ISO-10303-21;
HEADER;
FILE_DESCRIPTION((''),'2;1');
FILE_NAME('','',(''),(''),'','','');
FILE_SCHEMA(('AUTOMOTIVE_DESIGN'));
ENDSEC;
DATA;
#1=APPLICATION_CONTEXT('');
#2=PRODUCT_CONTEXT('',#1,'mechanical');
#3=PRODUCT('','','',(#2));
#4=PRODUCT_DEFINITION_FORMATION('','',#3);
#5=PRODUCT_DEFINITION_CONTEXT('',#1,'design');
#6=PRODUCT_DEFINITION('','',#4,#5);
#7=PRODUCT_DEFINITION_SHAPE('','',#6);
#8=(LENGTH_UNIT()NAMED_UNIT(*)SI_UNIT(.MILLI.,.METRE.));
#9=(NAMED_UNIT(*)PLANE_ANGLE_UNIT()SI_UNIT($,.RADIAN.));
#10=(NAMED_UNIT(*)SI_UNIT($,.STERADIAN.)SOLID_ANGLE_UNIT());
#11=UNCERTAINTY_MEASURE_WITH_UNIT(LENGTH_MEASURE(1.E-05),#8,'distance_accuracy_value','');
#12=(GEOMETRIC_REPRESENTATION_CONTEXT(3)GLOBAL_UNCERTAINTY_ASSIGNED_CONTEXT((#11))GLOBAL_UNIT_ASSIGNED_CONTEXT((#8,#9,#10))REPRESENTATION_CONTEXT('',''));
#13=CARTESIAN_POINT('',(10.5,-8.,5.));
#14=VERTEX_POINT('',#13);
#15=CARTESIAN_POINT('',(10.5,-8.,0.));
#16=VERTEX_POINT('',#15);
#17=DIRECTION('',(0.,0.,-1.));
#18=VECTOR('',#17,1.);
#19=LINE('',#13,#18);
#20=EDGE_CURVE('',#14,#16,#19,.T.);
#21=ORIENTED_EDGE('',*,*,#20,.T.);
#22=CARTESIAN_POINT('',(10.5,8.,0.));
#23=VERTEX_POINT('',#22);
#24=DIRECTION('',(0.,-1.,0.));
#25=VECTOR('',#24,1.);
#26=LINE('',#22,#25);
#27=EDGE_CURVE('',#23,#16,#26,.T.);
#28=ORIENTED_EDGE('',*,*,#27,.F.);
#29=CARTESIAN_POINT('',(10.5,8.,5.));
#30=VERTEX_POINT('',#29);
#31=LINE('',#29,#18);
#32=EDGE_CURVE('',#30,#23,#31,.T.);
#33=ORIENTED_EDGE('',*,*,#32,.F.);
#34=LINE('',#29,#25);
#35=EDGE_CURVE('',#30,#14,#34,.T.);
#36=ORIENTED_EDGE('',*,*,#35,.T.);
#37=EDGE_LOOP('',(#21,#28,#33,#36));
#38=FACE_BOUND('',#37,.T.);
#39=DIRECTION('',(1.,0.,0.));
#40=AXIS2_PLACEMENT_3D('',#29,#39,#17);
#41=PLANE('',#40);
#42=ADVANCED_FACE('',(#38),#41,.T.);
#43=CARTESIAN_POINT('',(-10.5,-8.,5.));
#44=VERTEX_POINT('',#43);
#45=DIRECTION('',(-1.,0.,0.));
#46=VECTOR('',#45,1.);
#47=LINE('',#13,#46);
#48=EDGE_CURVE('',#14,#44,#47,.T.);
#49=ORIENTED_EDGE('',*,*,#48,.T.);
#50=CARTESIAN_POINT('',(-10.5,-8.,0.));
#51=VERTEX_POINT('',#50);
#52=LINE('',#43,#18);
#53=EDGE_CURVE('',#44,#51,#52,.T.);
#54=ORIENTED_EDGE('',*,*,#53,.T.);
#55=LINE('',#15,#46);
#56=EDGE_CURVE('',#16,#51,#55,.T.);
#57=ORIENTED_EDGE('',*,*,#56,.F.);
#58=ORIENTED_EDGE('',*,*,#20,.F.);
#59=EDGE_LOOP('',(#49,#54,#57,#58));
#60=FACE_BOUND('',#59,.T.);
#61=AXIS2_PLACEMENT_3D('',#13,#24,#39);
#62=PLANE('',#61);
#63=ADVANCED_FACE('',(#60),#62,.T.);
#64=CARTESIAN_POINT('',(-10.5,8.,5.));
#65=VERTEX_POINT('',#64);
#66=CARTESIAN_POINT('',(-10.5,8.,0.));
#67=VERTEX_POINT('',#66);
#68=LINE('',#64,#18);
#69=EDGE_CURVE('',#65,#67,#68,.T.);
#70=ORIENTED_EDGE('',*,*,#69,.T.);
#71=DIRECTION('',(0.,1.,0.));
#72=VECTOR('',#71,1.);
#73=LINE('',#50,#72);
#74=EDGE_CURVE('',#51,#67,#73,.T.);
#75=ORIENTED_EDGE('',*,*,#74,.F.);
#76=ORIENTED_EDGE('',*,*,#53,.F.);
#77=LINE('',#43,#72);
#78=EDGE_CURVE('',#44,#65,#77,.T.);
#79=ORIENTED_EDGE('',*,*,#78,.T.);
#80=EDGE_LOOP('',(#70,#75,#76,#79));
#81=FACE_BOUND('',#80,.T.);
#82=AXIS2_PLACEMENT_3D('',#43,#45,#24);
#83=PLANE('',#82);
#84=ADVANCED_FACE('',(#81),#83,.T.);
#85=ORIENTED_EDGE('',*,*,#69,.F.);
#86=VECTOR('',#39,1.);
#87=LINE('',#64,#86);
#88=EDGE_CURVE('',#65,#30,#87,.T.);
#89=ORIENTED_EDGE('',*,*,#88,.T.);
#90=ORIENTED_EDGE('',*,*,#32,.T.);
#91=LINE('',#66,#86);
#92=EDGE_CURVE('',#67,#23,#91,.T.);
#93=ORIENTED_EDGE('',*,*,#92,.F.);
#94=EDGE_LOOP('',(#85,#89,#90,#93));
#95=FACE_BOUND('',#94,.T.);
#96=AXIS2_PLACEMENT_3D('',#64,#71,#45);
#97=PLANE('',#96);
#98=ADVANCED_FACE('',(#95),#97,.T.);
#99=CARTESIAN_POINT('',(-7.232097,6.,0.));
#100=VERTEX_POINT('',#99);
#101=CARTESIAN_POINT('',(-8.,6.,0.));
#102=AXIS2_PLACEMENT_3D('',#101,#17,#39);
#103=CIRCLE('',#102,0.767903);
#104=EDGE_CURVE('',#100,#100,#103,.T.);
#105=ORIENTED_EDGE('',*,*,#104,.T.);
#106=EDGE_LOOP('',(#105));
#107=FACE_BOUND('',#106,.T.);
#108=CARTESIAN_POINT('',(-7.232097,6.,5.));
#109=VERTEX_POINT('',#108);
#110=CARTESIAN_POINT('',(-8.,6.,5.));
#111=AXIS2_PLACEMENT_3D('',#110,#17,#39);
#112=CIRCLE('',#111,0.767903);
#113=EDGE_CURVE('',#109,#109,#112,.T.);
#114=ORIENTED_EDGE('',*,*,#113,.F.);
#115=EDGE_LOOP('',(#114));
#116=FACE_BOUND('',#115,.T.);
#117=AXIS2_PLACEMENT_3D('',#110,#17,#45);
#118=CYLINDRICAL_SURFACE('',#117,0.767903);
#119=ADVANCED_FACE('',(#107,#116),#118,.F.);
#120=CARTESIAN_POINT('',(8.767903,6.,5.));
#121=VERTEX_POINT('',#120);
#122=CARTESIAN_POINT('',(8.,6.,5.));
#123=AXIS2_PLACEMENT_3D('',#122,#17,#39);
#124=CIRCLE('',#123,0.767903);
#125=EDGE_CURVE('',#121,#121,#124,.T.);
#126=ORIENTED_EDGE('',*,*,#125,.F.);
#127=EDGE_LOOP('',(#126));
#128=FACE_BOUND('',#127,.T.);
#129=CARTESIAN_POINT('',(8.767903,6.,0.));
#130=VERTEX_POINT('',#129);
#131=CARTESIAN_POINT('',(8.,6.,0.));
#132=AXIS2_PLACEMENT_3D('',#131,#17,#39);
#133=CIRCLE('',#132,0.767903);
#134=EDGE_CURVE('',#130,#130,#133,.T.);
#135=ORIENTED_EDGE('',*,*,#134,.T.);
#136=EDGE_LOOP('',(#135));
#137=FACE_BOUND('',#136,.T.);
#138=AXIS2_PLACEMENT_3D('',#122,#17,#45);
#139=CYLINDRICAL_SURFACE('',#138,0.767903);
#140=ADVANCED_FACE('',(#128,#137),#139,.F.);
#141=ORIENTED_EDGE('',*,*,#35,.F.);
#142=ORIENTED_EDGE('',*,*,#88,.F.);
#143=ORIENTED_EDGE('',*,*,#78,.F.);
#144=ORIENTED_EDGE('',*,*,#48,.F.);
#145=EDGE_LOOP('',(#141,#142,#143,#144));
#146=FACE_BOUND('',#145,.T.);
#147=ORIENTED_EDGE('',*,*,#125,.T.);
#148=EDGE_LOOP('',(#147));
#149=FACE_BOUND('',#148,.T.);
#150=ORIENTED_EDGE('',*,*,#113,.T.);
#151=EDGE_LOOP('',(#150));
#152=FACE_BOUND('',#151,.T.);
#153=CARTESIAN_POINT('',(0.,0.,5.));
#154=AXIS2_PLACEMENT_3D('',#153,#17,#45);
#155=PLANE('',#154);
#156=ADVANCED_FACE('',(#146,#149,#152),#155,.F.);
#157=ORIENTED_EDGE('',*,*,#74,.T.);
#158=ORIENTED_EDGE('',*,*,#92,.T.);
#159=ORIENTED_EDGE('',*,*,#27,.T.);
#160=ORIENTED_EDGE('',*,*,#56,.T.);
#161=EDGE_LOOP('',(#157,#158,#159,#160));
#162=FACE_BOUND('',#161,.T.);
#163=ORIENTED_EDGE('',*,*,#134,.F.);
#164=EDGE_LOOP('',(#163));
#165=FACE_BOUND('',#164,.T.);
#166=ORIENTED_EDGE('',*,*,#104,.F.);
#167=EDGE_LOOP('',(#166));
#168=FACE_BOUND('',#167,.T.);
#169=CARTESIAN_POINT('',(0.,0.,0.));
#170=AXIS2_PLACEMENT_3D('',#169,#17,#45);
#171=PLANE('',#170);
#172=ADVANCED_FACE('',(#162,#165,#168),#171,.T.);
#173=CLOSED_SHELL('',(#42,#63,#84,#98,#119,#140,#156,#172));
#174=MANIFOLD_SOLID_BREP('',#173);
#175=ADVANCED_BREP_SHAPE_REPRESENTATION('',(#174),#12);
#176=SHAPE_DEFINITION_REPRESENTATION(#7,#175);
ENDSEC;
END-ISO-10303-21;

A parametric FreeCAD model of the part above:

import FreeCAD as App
import Part
import Sketcher


def add_polygon(sketch, points):
    """Adds a closed chain of lines whose ends are joined by coincident constraints."""
    first, n = sketch.GeometryCount, len(points)
    for a, b in zip(points, points[1:] + points[:1]):
        sketch.addGeometry(Part.LineSegment(App.Vector(*a, 0), App.Vector(*b, 0)), False)
    for i in range(n):
        sketch.addConstraint(Sketcher.Constraint("Coincident", first + i, 2, first + (i + 1) % n, 1))

doc = App.newDocument("Part")
body = doc.addObject("PartDesign::Body", "Body")

sketch1 = body.newObject("Sketcher::SketchObject", "Sketch")
sketch1.AttachmentSupport = (doc.getObject("XY_Plane"), [""])
sketch1.MapMode = "FlatFace"
add_polygon(sketch1, [(10.5, 8), (10.5, -8), (-10.5, -8), (-10.5, 8)])
sketch1.addGeometry(Part.Circle(App.Vector(8, 6, 0), App.Vector(0, 0, 1), 0.8), False)
sketch1.addGeometry(Part.Circle(App.Vector(-8, 6, 0), App.Vector(0, 0, 1), 0.8), False)
sketch1.addConstraint([
    Sketcher.Constraint("Vertical", 0),
    Sketcher.Constraint("Horizontal", 1),
    Sketcher.Constraint("Vertical", 2),
    Sketcher.Constraint("Horizontal", 3),
    Sketcher.Constraint("Equal", 4, 5),
    Sketcher.Constraint("Symmetric", 0, 2, 2, 2, -1, 1),
    Sketcher.Constraint("Symmetric", 4, 3, 5, 3, -2),
    Sketcher.Constraint("DistanceX", 1, 2, 1, 1, 21.0),
    Sketcher.Constraint("DistanceY", 0, 2, 0, 1, 16.0),
    Sketcher.Constraint("DistanceX", -1, 1, 4, 3, 8.0),
    Sketcher.Constraint("DistanceY", -1, 1, 4, 3, 6.0),
    Sketcher.Constraint("Diameter", 4, 1.535806),
])
pad1 = body.newObject("PartDesign::Pad", "Pad")
pad1.Profile = sketch1
pad1.Length = 5

doc.recompute()
